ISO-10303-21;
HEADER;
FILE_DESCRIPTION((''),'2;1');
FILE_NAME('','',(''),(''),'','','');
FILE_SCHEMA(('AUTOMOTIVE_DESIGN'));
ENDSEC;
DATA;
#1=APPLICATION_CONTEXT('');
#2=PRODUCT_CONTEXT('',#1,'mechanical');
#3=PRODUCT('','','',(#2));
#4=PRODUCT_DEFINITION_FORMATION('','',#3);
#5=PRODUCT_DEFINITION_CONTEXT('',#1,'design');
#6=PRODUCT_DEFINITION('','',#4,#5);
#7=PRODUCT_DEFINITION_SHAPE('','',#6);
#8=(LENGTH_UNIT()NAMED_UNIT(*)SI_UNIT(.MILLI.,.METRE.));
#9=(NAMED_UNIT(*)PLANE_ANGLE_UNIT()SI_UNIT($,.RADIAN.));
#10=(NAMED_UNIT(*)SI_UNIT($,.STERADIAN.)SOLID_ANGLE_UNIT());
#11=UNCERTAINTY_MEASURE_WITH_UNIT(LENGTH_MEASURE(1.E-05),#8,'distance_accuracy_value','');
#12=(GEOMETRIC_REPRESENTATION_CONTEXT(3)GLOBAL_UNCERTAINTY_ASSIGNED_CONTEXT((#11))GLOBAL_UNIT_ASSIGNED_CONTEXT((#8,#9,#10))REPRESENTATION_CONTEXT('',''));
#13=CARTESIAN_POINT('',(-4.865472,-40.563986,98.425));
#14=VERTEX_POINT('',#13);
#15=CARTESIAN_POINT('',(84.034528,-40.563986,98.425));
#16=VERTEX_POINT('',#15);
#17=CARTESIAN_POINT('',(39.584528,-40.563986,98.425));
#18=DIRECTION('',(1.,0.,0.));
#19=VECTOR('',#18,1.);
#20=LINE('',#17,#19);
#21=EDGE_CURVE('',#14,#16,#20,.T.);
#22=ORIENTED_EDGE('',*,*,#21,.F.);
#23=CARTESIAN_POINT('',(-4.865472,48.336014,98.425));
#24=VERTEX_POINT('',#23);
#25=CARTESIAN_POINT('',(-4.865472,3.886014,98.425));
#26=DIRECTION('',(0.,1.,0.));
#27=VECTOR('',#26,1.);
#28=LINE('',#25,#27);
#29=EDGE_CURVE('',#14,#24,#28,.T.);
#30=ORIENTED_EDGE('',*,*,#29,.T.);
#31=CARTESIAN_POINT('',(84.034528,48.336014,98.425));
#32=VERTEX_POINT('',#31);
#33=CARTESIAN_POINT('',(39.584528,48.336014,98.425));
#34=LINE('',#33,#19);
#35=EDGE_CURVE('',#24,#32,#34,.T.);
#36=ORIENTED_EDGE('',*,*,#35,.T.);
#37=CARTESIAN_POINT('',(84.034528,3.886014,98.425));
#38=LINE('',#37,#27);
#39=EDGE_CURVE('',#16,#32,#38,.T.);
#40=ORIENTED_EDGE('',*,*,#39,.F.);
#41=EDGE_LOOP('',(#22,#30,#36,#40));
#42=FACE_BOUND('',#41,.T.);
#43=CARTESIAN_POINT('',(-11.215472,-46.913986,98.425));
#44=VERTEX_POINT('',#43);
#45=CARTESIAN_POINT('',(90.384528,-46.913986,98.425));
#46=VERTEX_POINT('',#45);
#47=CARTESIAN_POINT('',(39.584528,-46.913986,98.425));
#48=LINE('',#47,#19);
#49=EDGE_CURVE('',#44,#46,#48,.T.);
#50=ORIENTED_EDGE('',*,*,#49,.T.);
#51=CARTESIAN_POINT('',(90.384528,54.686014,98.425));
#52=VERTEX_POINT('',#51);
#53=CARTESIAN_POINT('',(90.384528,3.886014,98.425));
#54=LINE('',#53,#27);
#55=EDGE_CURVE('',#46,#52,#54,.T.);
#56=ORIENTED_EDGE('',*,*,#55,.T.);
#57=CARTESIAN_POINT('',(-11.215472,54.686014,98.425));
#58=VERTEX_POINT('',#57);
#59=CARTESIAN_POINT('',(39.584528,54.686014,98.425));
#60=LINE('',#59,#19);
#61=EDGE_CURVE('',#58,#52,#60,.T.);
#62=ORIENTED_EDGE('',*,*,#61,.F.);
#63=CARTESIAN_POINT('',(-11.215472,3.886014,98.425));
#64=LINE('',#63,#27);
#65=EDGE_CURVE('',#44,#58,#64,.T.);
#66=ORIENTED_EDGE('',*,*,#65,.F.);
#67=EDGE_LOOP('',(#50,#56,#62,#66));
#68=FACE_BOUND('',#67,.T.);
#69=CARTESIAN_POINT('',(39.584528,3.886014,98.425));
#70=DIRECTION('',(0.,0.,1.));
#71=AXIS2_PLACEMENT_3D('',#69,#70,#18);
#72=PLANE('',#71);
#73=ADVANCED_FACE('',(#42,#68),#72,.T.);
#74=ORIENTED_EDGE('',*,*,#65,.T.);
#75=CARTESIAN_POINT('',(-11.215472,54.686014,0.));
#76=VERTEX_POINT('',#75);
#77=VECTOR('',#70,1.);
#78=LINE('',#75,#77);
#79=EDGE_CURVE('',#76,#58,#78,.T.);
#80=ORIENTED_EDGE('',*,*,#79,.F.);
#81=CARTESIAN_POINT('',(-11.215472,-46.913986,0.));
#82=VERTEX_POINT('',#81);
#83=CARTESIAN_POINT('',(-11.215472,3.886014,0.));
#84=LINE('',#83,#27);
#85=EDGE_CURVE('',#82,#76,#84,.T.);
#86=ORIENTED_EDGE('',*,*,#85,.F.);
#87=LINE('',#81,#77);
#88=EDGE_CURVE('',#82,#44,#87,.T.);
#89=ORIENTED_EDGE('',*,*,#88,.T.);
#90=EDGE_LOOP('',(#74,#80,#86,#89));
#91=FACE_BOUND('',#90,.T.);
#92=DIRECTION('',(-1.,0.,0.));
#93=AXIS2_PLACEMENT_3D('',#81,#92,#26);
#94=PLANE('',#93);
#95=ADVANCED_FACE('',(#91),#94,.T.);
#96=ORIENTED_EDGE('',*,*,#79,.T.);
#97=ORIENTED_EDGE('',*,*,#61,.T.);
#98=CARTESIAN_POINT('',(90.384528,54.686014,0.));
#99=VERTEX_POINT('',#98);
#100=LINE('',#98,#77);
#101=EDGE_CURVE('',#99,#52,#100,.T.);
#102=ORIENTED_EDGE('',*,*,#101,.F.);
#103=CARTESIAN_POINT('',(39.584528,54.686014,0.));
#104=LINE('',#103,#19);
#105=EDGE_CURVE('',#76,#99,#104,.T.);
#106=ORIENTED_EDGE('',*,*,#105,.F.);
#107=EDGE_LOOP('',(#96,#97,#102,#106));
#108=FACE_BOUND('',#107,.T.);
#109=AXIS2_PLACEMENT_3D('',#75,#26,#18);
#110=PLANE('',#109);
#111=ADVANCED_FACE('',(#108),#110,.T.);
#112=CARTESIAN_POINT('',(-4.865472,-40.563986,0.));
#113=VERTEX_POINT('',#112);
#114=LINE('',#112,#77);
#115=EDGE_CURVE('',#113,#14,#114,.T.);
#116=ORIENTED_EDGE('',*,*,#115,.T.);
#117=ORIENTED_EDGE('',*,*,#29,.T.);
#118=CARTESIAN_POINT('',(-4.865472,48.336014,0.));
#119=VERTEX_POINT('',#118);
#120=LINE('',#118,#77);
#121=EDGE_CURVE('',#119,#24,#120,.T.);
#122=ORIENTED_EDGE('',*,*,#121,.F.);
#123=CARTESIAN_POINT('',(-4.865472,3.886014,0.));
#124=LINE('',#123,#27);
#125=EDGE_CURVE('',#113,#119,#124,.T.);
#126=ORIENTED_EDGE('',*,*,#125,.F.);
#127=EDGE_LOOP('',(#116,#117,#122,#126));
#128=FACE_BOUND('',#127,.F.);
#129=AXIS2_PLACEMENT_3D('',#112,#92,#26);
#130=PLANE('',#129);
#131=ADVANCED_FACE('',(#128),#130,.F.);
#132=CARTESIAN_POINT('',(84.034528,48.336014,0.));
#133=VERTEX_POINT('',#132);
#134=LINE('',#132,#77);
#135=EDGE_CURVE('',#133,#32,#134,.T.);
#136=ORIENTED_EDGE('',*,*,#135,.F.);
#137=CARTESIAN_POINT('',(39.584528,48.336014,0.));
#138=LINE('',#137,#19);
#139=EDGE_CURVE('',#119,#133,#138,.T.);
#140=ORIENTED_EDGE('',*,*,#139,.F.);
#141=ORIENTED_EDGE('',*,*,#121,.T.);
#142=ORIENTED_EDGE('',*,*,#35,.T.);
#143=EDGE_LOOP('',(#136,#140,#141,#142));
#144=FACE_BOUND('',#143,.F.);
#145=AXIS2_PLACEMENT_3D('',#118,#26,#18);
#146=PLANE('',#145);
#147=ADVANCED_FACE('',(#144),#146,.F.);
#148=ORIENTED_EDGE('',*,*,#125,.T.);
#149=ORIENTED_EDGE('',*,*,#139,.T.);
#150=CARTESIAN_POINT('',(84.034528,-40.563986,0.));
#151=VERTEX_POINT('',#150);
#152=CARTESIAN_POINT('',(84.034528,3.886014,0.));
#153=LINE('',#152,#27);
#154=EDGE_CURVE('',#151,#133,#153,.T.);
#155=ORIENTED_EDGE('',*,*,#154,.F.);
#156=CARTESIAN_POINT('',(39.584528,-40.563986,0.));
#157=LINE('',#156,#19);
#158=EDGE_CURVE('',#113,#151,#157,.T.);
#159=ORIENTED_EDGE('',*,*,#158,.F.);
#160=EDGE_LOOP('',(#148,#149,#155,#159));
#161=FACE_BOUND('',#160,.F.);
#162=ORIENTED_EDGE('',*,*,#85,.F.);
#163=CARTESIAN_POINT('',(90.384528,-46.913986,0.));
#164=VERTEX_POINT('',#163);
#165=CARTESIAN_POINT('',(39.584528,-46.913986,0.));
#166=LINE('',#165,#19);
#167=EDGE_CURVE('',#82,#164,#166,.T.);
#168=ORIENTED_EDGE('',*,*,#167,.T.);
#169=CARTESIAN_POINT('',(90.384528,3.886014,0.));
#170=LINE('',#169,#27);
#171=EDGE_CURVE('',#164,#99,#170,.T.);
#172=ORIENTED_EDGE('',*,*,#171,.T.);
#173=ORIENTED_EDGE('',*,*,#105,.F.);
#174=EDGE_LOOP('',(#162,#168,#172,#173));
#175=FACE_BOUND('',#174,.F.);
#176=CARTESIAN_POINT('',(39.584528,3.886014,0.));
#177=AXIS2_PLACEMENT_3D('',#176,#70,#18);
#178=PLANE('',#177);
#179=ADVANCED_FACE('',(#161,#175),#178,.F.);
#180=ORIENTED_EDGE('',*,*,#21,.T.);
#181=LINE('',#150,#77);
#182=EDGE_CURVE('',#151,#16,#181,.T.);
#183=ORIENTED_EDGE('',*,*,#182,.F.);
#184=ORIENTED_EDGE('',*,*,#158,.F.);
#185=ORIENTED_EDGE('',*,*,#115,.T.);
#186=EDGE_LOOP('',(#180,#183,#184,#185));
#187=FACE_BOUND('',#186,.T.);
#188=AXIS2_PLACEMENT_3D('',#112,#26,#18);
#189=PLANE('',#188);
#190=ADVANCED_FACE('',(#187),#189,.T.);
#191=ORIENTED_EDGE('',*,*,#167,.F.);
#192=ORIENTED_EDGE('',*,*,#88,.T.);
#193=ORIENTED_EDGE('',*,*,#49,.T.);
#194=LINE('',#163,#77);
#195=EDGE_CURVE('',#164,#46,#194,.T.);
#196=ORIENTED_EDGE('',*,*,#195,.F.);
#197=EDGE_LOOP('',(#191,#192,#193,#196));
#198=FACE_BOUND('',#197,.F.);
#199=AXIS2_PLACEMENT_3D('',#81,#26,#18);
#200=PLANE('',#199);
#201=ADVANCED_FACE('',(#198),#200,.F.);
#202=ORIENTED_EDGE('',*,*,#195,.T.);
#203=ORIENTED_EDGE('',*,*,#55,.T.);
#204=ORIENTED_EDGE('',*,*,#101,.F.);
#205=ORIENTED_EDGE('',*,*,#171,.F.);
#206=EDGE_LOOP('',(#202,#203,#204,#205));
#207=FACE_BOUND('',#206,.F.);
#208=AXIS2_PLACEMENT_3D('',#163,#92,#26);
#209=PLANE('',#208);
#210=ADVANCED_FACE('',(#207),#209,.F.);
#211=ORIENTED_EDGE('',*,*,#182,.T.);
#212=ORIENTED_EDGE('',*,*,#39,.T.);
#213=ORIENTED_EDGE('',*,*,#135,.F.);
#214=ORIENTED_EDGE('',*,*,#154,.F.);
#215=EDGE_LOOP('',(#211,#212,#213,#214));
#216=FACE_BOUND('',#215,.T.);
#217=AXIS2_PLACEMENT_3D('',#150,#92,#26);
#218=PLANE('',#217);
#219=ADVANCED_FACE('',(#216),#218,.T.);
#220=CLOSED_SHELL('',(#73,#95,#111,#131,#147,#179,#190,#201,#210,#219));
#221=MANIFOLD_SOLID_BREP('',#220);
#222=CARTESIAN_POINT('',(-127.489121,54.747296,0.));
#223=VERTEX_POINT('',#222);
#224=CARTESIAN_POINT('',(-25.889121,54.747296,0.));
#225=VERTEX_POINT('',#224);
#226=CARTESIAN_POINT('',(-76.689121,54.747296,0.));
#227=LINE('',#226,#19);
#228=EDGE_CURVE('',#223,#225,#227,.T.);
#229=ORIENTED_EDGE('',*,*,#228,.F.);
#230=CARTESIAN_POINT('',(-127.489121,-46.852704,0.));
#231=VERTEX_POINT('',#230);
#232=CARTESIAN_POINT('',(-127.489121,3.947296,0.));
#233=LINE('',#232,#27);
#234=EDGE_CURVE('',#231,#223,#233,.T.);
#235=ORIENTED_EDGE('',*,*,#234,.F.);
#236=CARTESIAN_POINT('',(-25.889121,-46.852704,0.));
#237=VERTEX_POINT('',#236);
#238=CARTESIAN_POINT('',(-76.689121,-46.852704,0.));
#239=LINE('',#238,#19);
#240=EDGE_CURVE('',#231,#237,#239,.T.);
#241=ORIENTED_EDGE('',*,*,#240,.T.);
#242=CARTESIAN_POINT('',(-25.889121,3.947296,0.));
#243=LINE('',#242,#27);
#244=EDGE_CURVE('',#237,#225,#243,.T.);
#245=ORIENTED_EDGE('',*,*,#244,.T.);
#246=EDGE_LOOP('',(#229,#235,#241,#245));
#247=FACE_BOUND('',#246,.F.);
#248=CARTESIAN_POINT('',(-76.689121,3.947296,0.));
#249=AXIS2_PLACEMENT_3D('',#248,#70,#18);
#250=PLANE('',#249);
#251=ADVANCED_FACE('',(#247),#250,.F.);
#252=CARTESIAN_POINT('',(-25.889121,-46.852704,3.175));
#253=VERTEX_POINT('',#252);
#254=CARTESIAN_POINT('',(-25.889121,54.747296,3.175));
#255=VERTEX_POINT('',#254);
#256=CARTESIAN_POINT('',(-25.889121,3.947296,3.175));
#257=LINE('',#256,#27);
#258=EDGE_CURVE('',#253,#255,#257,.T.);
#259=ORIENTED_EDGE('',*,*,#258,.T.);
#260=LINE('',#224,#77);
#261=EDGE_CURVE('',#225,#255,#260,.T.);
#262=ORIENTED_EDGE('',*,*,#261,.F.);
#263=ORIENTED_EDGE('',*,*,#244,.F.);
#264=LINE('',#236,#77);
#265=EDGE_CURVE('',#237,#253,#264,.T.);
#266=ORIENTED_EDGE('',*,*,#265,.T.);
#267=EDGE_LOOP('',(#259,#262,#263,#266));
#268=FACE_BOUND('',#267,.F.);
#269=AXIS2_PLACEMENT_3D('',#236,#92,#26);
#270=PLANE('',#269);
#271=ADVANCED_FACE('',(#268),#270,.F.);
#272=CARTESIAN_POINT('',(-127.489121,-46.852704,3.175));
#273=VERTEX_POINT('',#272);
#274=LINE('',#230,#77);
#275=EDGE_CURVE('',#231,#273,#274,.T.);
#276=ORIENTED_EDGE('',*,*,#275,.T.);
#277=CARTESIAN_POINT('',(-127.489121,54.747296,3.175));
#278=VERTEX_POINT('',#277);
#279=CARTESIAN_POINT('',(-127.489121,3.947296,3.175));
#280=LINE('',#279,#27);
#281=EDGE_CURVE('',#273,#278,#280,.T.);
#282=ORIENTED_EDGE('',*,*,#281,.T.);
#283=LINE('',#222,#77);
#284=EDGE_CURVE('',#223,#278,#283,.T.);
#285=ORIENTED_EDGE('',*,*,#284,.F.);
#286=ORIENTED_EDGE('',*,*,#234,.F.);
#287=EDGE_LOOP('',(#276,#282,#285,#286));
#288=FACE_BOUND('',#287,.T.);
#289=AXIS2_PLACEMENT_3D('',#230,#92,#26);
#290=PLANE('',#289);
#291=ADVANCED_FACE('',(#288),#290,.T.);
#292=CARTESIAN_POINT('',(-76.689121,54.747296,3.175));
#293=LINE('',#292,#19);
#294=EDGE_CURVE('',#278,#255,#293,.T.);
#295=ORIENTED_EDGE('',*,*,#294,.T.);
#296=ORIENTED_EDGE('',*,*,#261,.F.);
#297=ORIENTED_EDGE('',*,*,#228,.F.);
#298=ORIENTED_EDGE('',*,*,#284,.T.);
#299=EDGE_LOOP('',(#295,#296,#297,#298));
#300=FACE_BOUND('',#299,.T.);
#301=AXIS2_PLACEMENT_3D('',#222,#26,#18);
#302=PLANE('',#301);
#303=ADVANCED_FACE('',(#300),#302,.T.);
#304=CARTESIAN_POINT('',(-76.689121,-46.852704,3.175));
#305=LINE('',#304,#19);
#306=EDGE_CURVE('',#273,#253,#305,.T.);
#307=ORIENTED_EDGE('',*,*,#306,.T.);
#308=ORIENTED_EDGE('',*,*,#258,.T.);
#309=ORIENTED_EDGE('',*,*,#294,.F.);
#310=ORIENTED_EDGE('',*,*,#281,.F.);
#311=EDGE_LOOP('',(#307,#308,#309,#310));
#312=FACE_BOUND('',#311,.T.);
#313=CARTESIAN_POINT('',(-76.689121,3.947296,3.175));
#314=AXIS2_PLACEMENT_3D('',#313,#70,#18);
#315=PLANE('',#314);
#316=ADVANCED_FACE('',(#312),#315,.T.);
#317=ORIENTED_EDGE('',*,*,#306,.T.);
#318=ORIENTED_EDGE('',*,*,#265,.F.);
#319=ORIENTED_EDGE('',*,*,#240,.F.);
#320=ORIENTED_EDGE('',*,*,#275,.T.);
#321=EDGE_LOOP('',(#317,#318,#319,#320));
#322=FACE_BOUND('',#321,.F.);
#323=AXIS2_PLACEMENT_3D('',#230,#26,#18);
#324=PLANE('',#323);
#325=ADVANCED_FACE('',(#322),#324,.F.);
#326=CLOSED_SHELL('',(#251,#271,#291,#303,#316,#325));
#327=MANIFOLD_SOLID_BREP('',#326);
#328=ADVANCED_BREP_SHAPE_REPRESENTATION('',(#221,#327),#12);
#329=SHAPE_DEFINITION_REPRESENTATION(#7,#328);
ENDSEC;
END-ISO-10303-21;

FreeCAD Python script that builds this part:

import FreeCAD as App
import Part
import Sketcher
from FreeCAD import Vector
Q = App.Units.Quantity


def add_polygon(sketch, points):
    """Adds a closed chain of lines whose ends are joined by coincident constraints."""
    first, n = sketch.GeometryCount, len(points)
    for a, b in zip(points, points[1:] + points[:1]):
        sketch.addGeometry(Part.LineSegment(App.Vector(*a, 0), App.Vector(*b, 0)), False)
    for i in range(n):
        sketch.addConstraint(Sketcher.Constraint("Coincident", first + i, 2, first + (i + 1) % n, 1))

doc = App.newDocument("Part")
body = doc.addObject("PartDesign::Body", "Body")

# Sketch on XY plane
sketch1 = doc.addObject("Sketcher::SketchObject", "Sketch")
body.addObject(sketch1)
sketch1.AttachmentSupport = (doc.XY_Plane, [""])
sketch1.MapMode = "FlatFace"
add_polygon(sketch1, [(-127.489121, 54.747296), (-127.489121, -46.852704), (-25.889121, -46.852704), (-25.889121, 54.747296)])  # lines 0-3
sketch1.addConstraint([
    Sketcher.Constraint("Vertical", 0),
    Sketcher.Constraint("Horizontal", 1),
    Sketcher.Constraint("Vertical", 2),
    Sketcher.Constraint("Horizontal", 3),
    Sketcher.Constraint("Equal", 3, 0),
    Sketcher.Constraint("DistanceX", 1, 1, 1, 2, Q("4 in")),
    Sketcher.Constraint("DistanceX", 0, 2, -1, 1, 127.489121),
    Sketcher.Constraint("DistanceY", 0, 2, -1, 1, 46.852704),
])
pad1 = doc.addObject("PartDesign::Pad", "Pad")
body.addObject(pad1)
pad1.Profile = sketch1
pad1.Length = Q("0.125 in")
body2 = doc.addObject("PartDesign::Body", "Body001")

# Sketch on XY plane
sketch2 = doc.addObject("Sketcher::SketchObject", "Sketch001")
body2.addObject(sketch2)
sketch2.AttachmentSupport = (doc.getObject("XY_Plane001"), [""])
sketch2.MapMode = "FlatFace"
add_polygon(sketch2, [(-11.215472, 54.686014), (-11.215472, -46.913986), (90.384528, -46.913986), (90.384528, 54.686014)])  # lines 0-3
add_polygon(sketch2, [(84.034528, -40.563986), (-4.865472, -40.563986), (-4.865472, 48.336014), (84.034528, 48.336014)])  # lines 4-7
sketch2.addConstraint([
    Sketcher.Constraint("Vertical", 0),
    Sketcher.Constraint("Horizontal", 1),
    Sketcher.Constraint("Vertical", 2),
    Sketcher.Constraint("Horizontal", 3),
    Sketcher.Constraint("Horizontal", 4),
    Sketcher.Constraint("Vertical", 5),
    Sketcher.Constraint("Horizontal", 6),
    Sketcher.Constraint("Vertical", 7),
    Sketcher.Constraint("Equal", 3, 0),
    Sketcher.Constraint("Equal", 6, 5),
    Sketcher.Constraint("DistanceX", 1, 1, 1, 2, Q("4 in")),
    Sketcher.Constraint("DistanceX", 4, 2, 4, 1, Q("3.5 in")),
    Sketcher.Constraint("DistanceX", 0, 2, 4, 2, Q("0.25 in")),
    Sketcher.Constraint("DistanceY", 0, 2, 4, 2, Q("0.25 in")),
    Sketcher.Constraint("DistanceX", -1, 1, 1, 2, 90.384528),
    Sketcher.Constraint("DistanceY", 0, 2, -1, 1, 46.913986),
])
pad2 = doc.addObject("PartDesign::Pad", "Pad001")
body2.addObject(pad2)
pad2.Profile = sketch2
pad2.Length = Q("3.875 in")

doc.recompute()
